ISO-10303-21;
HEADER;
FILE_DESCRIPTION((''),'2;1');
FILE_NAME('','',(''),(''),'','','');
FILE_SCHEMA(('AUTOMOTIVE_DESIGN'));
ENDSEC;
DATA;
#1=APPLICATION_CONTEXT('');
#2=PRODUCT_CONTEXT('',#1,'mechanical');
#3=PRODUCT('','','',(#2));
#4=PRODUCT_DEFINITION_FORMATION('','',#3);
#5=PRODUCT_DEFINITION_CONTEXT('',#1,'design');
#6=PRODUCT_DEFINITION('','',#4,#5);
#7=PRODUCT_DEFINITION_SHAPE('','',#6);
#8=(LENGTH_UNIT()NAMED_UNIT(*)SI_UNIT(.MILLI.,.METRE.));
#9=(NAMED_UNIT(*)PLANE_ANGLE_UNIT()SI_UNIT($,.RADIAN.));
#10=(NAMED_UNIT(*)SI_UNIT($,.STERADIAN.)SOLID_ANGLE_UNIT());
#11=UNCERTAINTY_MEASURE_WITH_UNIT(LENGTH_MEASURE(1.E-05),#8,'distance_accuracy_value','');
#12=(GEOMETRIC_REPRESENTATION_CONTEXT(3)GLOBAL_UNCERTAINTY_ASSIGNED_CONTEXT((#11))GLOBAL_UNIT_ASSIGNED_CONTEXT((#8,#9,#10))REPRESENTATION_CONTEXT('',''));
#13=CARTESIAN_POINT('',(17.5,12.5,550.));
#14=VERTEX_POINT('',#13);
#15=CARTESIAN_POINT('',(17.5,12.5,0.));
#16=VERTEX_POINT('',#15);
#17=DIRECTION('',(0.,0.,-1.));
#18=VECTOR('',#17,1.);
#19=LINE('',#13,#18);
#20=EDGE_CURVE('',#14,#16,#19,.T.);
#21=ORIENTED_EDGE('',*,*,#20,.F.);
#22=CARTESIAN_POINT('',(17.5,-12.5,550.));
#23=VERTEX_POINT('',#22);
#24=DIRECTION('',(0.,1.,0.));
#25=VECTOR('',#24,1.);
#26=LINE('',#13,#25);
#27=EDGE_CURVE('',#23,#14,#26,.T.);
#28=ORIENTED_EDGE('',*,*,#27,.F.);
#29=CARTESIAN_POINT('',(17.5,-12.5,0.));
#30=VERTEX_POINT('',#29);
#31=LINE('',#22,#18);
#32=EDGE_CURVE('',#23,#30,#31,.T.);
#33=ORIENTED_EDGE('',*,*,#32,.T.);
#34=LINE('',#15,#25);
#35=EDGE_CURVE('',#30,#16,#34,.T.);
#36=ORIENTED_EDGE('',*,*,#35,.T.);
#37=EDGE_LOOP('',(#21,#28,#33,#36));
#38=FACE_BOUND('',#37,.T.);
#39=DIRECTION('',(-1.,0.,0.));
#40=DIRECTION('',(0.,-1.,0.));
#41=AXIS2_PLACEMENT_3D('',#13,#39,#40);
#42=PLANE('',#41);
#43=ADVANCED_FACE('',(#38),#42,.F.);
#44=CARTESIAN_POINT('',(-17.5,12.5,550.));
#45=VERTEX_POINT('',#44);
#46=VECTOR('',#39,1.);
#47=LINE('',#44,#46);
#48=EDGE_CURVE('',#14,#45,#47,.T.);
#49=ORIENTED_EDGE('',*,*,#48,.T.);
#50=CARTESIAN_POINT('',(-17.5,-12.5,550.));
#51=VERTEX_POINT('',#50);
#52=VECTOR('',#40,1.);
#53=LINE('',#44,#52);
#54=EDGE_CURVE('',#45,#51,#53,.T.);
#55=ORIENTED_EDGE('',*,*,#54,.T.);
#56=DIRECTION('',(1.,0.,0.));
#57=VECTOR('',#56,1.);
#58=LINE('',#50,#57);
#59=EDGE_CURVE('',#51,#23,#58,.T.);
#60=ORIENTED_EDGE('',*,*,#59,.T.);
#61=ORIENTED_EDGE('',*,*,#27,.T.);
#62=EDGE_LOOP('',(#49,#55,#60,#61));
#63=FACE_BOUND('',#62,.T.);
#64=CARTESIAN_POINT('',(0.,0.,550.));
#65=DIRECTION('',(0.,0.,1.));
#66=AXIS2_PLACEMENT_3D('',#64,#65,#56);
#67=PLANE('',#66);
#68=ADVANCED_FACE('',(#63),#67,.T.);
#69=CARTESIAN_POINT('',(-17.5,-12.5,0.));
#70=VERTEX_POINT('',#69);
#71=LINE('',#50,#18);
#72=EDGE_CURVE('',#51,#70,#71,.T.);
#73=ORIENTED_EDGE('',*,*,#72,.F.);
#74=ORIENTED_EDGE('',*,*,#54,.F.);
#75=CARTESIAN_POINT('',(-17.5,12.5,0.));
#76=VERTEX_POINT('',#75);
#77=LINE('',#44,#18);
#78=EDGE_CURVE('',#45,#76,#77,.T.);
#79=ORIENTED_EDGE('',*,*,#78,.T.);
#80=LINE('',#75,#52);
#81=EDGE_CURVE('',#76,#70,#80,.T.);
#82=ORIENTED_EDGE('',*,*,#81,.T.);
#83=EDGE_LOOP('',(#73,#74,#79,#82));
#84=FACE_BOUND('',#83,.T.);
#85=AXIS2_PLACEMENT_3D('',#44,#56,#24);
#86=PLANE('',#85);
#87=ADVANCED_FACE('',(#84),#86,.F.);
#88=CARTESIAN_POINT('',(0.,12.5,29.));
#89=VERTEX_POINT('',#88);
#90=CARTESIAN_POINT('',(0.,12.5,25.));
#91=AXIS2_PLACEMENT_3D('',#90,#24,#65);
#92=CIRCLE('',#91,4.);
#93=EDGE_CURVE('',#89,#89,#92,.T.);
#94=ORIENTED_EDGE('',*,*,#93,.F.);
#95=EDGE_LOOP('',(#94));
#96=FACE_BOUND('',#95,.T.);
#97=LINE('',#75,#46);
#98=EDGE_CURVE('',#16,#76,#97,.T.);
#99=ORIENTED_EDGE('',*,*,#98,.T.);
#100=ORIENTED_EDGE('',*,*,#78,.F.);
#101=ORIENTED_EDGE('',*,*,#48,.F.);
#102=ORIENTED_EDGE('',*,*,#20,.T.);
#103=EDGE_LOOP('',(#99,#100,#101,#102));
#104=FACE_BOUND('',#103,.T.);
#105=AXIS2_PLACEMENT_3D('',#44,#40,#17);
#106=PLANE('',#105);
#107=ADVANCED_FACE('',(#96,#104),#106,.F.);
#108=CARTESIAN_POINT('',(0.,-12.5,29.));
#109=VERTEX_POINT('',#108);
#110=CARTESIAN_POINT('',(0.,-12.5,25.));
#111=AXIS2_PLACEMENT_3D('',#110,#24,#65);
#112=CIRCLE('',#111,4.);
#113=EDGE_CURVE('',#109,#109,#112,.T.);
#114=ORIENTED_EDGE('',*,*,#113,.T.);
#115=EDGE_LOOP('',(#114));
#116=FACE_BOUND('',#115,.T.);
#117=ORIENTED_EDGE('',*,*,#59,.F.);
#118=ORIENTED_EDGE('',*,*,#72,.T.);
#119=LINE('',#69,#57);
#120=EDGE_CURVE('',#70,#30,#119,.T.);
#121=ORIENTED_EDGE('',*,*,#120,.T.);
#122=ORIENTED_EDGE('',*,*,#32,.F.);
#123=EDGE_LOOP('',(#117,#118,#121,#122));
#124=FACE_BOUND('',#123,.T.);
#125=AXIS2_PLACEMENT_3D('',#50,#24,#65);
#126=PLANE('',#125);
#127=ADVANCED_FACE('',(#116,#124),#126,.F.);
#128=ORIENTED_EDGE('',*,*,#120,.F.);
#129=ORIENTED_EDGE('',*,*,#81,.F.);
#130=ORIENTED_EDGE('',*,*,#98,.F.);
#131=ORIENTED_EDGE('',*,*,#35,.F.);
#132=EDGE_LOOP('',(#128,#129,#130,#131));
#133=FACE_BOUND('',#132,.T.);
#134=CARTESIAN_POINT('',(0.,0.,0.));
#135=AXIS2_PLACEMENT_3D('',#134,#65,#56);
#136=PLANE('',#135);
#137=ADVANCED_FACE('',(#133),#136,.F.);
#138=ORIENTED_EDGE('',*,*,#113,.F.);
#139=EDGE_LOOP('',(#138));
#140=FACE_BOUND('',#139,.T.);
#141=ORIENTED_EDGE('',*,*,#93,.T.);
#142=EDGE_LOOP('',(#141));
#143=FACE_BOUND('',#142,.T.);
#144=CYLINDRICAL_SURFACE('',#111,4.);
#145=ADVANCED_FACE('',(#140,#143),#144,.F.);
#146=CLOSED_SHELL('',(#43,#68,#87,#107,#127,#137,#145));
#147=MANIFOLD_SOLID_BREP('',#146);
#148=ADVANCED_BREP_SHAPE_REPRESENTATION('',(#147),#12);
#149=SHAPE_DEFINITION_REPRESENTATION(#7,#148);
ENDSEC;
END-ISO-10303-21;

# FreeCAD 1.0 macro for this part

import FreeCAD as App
import Part
import Sketcher

V = App.Vector


def add_polygon(sketch, points):
    """Adds a closed chain of lines whose ends are joined by coincident constraints."""
    first, n = sketch.GeometryCount, len(points)
    for a, b in zip(points, points[1:] + points[:1]):
        sketch.addGeometry(Part.LineSegment(App.Vector(*a, 0), App.Vector(*b, 0)), False)
    for i in range(n):
        sketch.addConstraint(Sketcher.Constraint("Coincident", first + i, 2, first + (i + 1) % n, 1))

doc = App.newDocument("Part")
body = doc.addObject("PartDesign::Body", "Body")

sketch1 = body.newObject("Sketcher::SketchObject", "Sketch")
sketch1.AttachmentSupport = (doc.getObject("XY_Plane"), [""])
sketch1.MapMode = "FlatFace"
add_polygon(sketch1, [(-17.5, 12.5), (-17.5, -12.5), (17.5, -12.5), (17.5, 12.5)])
sketch1.addConstraint(Sketcher.Constraint("Vertical", 0))
sketch1.addConstraint(Sketcher.Constraint("Horizontal", 1))
sketch1.addConstraint(Sketcher.Constraint("Vertical", 2))
sketch1.addConstraint(Sketcher.Constraint("Horizontal", 3))
sketch1.addConstraint(Sketcher.Constraint("Symmetric", 0, 2, 2, 2, -1, 1))
sketch1.addConstraint(Sketcher.Constraint("DistanceX", 1, 1, 1, 2, 35.0))
sketch1.addConstraint(Sketcher.Constraint("DistanceY", 0, 2, 0, 1, 25.0))
pad1 = body.newObject("PartDesign::Pad", "Pad")
pad1.Profile = sketch1
pad1.Length = 550

sketch2 = body.newObject("Sketcher::SketchObject", "Sketch001")
sketch2.AttachmentSupport = (doc.getObject("XZ_Plane"), [""])
sketch2.MapMode = "FlatFace"
sketch2.AttachmentOffset = App.Placement(V(0, 0, -12.5), App.Rotation())
sketch2.addGeometry(Part.Circle(V(0, 25, 0), V(0, 0, 1), 4), False)
sketch2.addConstraint(Sketcher.Constraint("PointOnObject", 0, 3, -2))
sketch2.addConstraint(Sketcher.Constraint("Diameter", 0, 8.0))
sketch2.addConstraint(Sketcher.Constraint("DistanceY", -1, 1, 0, 3, 25.0))
pocket1 = body.newObject("PartDesign::Pocket", "Pocket")
pocket1.Profile = sketch2
pocket1.Type = "ThroughAll"
pocket1.Reversed = True

doc.recompute()
